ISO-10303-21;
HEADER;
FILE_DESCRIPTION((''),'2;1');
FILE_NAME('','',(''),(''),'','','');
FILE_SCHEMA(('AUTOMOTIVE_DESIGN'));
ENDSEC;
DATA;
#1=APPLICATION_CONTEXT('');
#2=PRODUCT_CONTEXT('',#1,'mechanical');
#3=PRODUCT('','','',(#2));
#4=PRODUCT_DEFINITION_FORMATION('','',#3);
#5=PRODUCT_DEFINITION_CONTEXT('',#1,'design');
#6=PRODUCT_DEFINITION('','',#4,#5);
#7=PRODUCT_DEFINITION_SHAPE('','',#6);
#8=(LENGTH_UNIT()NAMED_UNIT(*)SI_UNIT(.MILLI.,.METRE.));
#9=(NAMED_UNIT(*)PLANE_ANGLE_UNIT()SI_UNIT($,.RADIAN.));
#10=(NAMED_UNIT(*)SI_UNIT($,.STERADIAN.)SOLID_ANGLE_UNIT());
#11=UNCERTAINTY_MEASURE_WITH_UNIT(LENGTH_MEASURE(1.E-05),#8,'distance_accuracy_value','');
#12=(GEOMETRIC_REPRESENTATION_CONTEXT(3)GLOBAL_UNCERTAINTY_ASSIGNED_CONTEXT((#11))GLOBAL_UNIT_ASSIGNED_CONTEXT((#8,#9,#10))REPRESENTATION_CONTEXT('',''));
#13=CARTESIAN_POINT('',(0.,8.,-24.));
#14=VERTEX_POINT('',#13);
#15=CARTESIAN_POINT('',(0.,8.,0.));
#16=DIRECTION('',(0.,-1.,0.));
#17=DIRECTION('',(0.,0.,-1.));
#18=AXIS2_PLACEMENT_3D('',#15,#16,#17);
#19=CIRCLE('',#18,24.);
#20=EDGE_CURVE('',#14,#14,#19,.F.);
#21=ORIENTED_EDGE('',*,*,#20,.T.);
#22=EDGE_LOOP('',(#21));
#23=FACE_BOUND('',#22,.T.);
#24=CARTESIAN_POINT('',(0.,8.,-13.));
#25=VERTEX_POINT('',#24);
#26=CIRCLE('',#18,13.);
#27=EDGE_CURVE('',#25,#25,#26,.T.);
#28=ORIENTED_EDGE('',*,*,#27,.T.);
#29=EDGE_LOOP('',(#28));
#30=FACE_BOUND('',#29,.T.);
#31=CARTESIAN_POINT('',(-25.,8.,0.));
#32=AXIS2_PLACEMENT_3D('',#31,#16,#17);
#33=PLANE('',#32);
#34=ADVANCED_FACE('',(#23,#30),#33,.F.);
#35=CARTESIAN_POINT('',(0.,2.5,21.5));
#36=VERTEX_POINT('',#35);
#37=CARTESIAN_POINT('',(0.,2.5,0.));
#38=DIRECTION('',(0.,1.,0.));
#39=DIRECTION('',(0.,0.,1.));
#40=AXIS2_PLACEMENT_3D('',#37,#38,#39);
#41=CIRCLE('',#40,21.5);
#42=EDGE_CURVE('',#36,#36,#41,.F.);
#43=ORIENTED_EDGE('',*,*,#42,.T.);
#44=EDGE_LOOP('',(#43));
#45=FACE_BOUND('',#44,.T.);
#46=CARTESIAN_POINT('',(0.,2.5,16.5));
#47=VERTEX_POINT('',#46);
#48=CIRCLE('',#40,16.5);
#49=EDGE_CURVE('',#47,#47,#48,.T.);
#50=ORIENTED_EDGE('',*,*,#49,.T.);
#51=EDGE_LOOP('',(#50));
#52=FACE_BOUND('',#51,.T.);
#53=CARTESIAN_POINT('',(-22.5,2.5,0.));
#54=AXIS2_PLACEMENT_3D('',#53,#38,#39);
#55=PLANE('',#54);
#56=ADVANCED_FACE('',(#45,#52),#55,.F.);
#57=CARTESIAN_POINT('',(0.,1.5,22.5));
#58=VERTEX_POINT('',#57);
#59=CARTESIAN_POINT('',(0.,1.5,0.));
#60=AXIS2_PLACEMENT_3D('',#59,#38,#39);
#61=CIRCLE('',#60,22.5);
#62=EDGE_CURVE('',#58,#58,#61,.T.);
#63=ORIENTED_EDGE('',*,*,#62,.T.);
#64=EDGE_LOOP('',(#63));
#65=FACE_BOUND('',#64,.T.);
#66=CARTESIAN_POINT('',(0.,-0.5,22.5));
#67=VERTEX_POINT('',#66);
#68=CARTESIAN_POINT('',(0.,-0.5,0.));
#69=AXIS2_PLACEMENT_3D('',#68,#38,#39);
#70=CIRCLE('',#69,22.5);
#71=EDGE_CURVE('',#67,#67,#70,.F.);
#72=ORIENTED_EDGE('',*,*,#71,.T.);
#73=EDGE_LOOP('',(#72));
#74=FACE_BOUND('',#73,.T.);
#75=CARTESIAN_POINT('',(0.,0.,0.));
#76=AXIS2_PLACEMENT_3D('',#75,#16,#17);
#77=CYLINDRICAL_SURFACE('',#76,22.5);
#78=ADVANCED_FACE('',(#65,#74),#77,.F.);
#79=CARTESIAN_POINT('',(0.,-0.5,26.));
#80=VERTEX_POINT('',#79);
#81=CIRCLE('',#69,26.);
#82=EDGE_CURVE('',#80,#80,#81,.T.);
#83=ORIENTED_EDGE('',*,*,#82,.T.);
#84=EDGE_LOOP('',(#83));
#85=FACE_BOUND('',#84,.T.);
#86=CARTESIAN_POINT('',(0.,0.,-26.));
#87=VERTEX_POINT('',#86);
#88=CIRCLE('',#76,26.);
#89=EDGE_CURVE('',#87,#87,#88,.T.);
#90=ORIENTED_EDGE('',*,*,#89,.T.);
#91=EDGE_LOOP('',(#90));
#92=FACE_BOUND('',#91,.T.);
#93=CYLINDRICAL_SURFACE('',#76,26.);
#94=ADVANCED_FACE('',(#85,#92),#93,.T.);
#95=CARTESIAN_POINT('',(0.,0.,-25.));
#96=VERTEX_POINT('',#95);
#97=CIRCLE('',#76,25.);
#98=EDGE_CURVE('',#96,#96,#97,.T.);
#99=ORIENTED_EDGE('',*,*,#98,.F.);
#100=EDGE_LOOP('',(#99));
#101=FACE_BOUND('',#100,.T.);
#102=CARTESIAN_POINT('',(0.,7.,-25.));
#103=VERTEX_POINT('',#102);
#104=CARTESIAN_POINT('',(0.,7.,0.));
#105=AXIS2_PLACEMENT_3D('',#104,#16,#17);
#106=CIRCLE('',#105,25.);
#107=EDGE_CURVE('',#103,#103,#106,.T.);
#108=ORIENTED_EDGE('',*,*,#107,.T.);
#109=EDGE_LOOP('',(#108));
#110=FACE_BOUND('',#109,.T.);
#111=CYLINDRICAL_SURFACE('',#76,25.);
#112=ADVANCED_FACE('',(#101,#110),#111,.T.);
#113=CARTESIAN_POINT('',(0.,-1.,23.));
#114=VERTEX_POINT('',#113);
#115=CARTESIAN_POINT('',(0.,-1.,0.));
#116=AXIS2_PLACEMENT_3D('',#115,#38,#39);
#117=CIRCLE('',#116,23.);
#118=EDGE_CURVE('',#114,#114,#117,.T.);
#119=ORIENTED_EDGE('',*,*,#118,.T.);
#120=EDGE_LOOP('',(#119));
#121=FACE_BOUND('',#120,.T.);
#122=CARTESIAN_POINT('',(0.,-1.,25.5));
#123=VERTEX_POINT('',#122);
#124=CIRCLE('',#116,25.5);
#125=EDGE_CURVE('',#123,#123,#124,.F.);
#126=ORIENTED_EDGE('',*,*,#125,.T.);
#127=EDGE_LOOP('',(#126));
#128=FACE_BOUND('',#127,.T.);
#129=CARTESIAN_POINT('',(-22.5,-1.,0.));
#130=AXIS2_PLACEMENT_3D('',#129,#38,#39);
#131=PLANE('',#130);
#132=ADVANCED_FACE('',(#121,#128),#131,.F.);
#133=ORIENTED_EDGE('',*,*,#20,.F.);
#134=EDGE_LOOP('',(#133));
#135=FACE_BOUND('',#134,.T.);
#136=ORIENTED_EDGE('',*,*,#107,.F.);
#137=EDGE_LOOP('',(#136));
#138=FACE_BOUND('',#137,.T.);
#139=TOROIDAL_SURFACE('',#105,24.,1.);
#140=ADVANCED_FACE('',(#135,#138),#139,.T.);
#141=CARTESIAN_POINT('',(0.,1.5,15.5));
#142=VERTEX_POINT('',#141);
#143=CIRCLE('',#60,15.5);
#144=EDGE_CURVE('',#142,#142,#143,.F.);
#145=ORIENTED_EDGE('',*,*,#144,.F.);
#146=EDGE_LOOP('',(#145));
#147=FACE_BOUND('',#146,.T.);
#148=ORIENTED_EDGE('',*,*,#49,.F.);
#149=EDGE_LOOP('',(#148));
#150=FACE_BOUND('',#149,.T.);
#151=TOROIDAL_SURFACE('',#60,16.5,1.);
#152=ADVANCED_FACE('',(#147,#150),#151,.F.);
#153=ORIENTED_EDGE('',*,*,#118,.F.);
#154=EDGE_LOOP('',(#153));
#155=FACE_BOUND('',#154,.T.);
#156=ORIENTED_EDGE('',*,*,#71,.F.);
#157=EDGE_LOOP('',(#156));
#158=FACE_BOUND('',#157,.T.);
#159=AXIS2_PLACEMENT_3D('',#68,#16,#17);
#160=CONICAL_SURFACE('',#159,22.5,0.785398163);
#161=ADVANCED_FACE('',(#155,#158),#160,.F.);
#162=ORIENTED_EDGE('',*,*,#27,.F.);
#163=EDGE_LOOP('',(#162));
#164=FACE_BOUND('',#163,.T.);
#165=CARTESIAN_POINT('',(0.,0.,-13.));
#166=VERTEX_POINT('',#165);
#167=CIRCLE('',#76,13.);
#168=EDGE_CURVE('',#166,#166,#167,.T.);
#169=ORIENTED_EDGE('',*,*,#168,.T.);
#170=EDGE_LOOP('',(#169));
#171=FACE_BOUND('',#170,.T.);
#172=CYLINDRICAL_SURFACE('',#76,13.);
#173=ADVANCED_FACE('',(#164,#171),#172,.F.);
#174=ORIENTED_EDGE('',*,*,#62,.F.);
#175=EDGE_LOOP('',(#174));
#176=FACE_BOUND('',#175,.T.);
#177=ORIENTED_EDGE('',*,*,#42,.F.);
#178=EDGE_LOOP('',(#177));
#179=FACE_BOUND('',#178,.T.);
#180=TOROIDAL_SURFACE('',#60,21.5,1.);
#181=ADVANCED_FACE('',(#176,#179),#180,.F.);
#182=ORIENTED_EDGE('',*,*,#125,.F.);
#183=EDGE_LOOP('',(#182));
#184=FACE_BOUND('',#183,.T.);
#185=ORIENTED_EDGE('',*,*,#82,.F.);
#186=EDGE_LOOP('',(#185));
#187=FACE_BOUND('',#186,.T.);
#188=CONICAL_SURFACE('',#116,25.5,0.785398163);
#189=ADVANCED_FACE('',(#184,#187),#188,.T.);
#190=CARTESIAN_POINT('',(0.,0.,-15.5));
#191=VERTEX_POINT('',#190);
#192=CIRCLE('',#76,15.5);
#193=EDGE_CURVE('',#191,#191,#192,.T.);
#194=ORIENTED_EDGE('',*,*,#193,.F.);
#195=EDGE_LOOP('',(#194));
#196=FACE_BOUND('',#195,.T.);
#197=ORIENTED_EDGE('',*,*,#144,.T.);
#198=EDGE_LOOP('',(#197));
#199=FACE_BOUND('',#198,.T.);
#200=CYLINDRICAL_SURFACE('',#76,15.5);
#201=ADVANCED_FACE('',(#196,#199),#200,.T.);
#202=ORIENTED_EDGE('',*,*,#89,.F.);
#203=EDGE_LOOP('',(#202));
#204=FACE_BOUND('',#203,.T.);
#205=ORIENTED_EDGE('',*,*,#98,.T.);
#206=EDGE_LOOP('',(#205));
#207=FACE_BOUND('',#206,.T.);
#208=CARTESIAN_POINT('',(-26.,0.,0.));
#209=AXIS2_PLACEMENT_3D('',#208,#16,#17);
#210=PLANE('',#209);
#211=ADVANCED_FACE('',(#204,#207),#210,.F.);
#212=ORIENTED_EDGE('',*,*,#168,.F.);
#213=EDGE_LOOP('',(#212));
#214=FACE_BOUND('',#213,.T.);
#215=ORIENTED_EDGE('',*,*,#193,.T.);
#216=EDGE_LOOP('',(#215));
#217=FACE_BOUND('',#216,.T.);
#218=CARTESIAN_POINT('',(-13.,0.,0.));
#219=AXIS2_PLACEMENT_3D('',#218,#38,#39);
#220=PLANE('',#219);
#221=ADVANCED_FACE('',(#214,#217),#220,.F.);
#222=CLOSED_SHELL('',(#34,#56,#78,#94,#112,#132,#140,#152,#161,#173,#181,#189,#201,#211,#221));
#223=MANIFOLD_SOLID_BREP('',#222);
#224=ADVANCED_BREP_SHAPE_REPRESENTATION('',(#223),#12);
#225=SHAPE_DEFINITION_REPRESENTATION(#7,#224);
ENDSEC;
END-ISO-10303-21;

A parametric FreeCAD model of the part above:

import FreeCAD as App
import Part
import Sketcher

V = App.Vector
Q = App.Units.Quantity


def edges_at(feature, points):
    """Names of the edges that pass closest to the given points."""
    edges = feature.Shape.Edges
    near = lambda p: min(range(len(edges)), key=lambda i: edges[i].distToShape(Part.Vertex(*p))[0])
    return sorted({f"Edge{near(p) + 1}" for p in points})

doc = App.newDocument("Part")
params = doc.addObject("Spreadsheet::Sheet", "Params")
for row, (alias, value) in enumerate([
    ("sketch1_width", "1 mm"),
    ("sketch1_width2", "7 mm"),
    ("sketch1_width3", "12 mm"),
    ("sketch1_height", "8 mm"),
    ("revolution_angle", "360 deg"),
    ("fillet_radius", "1 mm"),
    ("chamfer_size", "0.5 mm"),
], start=1):
    params.set(f"A{row}", alias)
    params.set(f"B{row}", "=" + value)
    params.setAlias(f"B{row}", alias)

body = doc.addObject("PartDesign::Body", "Body")

sketch1 = body.newObject("Sketcher::SketchObject", "Sketch")
sketch1.AttachmentSupport = (doc.getObject("XY_Plane"), [""])
sketch1.MapMode = "FlatFace"
sketch1.addGeometry([
    Part.LineSegment(V(-25, 0, 0), V(-26, 0, 0)),
    Part.LineSegment(V(-26, 0, 0), V(-26, -1, 0)),
    Part.LineSegment(V(-26, -1, 0), V(-22.5, -1, 0)),
    Part.LineSegment(V(-22.5, -1, 0), V(-22.5, 2.5, 0)),
    Part.LineSegment(V(-22.5, 2.5, 0), V(-15.5, 2.5, 0)),
    Part.LineSegment(V(-15.5, 2.5, 0), V(-15.5, 0, 0)),
    Part.LineSegment(V(-15.5, 0, 0), V(-13, 0, 0)),
    Part.LineSegment(V(-13, 0, 0), V(-13, 8, 0)),
    Part.LineSegment(V(-13, 8, 0), V(-25, 8, 0)),
    Part.LineSegment(V(-25, 8, 0), V(-25, 0, 0)),
], False)
sketch1.addConstraint([
    Sketcher.Constraint("Coincident", 0, 2, 1, 1),
    Sketcher.Constraint("Coincident", 1, 2, 2, 1),
    Sketcher.Constraint("Coincident", 2, 2, 3, 1),
    Sketcher.Constraint("Coincident", 3, 2, 4, 1),
    Sketcher.Constraint("Coincident", 4, 2, 5, 1),
    Sketcher.Constraint("Coincident", 5, 2, 6, 1),
    Sketcher.Constraint("Coincident", 6, 2, 7, 1),
    Sketcher.Constraint("Coincident", 7, 2, 8, 1),
    Sketcher.Constraint("Coincident", 8, 2, 9, 1),
    Sketcher.Constraint("Coincident", 9, 2, 0, 1),
    Sketcher.Constraint("Horizontal", 0),
    Sketcher.Constraint("Vertical", 1),
    Sketcher.Constraint("Horizontal", 2),
    Sketcher.Constraint("Vertical", 3),
    Sketcher.Constraint("Horizontal", 4),
    Sketcher.Constraint("Vertical", 5),
    Sketcher.Constraint("Horizontal", 6),
    Sketcher.Constraint("Vertical", 7),
    Sketcher.Constraint("Horizontal", 8),
    Sketcher.Constraint("Vertical", 9),
    Sketcher.Constraint("PointOnObject", 0, 2, -1),
    Sketcher.Constraint("PointOnObject", 5, 2, -1),
    Sketcher.Constraint("Equal", 0, 1),
    Sketcher.Constraint("Equal", 2, 3),
    Sketcher.Constraint("Equal", 6, 5),
    Sketcher.Constraint("DistanceX", 0, 2, 0, 1, Q("1 mm")),
    Sketcher.Constraint("DistanceX", 4, 1, 4, 2, Q("7 mm")),
    Sketcher.Constraint("DistanceX", 8, 2, 8, 1, Q("12 mm")),
    Sketcher.Constraint("DistanceY", 7, 1, 7, 2, Q("8 mm")),
    Sketcher.Constraint("DistanceX", 0, 2, -1, 1, Q("26 mm")),
])
sketch1.setExpression("Constraints[25]", "Params.sketch1_width")
sketch1.setExpression("Constraints[26]", "Params.sketch1_width2")
sketch1.setExpression("Constraints[27]", "Params.sketch1_width3")
sketch1.setExpression("Constraints[28]", "Params.sketch1_height")
revolution = body.newObject("PartDesign::Revolution", "Revolution")
revolution.Profile = sketch1
revolution.ReferenceAxis = (sketch1, ["V_Axis"])
revolution.setExpression("Angle", "Params.revolution_angle")
doc.recompute()

fillet = body.newObject("PartDesign::Fillet", "Fillet")
fillet.Base = (revolution, edges_at(revolution, [(0, 8, 25), (0, 2.5, 22.5), (0, 2.5, 15.5)]))
fillet.setExpression("Radius", "Params.fillet_radius")
doc.recompute()

chamfer = body.newObject("PartDesign::Chamfer", "Chamfer")
chamfer.Base = (fillet, edges_at(fillet, [(0, -1, 26), (0, -1, 22.5)]))
chamfer.setExpression("Size", "Params.chamfer_size")

doc.recompute()
